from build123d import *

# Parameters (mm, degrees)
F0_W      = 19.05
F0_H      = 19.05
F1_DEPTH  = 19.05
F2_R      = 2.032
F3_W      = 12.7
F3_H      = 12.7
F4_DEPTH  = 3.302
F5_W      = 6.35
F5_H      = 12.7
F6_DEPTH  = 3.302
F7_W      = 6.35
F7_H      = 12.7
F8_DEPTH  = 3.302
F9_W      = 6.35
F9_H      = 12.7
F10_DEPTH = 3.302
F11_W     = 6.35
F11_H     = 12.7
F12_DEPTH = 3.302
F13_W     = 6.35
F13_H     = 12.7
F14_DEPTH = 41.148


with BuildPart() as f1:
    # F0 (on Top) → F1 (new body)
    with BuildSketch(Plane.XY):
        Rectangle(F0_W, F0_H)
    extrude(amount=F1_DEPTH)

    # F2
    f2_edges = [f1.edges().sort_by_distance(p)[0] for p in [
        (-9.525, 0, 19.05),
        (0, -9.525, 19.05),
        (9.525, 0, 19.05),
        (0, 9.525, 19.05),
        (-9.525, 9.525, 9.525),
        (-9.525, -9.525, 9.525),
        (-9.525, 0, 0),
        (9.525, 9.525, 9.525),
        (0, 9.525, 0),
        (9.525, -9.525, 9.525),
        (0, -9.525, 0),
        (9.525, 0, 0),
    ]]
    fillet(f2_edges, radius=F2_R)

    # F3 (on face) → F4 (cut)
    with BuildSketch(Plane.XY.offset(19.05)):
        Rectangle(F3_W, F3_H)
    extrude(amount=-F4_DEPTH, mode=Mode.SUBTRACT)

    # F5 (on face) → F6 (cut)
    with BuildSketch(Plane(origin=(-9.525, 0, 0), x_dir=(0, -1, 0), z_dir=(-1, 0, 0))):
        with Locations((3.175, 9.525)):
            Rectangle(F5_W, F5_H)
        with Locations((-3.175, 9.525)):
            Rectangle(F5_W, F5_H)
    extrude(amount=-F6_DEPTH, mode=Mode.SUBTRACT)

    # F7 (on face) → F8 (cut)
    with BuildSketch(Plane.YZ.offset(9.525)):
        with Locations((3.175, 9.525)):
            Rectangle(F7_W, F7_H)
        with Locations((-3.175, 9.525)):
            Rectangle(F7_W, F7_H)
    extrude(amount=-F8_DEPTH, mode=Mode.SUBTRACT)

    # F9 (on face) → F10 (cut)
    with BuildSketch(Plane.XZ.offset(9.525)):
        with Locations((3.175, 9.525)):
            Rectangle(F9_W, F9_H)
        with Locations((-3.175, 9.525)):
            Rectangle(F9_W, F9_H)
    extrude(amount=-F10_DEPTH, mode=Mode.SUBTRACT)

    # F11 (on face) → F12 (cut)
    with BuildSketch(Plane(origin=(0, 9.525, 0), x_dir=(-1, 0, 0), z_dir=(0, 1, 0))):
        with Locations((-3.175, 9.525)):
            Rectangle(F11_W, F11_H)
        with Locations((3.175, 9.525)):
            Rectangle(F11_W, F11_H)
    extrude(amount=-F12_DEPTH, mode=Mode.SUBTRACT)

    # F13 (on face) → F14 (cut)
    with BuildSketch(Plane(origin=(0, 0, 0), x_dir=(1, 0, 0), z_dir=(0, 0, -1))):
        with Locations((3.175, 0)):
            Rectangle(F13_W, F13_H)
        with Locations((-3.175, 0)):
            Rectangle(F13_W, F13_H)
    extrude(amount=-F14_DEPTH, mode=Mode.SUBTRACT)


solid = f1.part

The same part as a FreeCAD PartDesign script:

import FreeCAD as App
import Part
import Sketcher
Q = App.Units.Quantity

doc = App.newDocument("Part")
body = doc.addObject("PartDesign::Body", "Body")

sketch1 = doc.addObject("Sketcher::SketchObject", "Sketch")
body.addObject(sketch1)
sketch1.AttachmentSupport = (doc.XY_Plane, [""])
sketch1.MapMode = "FlatFace"
sketch1.addGeometry(Part.LineSegment(App.Vector(-10, 10, 0), App.Vector(-10, -10, 0)), False)
sketch1.addGeometry(Part.LineSegment(App.Vector(-10, -10, 0), App.Vector(10, -10, 0)), False)
sketch1.addGeometry(Part.LineSegment(App.Vector(10, -10, 0), App.Vector(10, 10, 0)), False)
sketch1.addGeometry(Part.LineSegment(App.Vector(10, 10, 0), App.Vector(-10, 10, 0)), False)
sketch1.addConstraint(Sketcher.Constraint("Coincident", 0, 2, 1, 1))
sketch1.addConstraint(Sketcher.Constraint("Coincident", 1, 2, 2, 1))
sketch1.addConstraint(Sketcher.Constraint("Coincident", 2, 2, 3, 1))
sketch1.addConstraint(Sketcher.Constraint("Coincident", 3, 2, 0, 1))
sketch1.addConstraint(Sketcher.Constraint("Vertical", 0))
sketch1.addConstraint(Sketcher.Constraint("Horizontal", 1))
sketch1.addConstraint(Sketcher.Constraint("Vertical", 2))
sketch1.addConstraint(Sketcher.Constraint("Horizontal", 3))
sketch1.addConstraint(Sketcher.Constraint("Symmetric", 0, 2, 2, 2, -1, 1))
sketch1.addConstraint(Sketcher.Constraint("Equal", 3, 0))
sketch1.addConstraint(Sketcher.Constraint("DistanceX", 1, 1, 1, 2, Q("0.75 in")))
pad1 = doc.addObject("PartDesign::Pad", "Pad")
body.addObject(pad1)
pad1.Profile = sketch1
pad1.Length = Q("0.75 in")
doc.recompute()

fillet = doc.addObject("PartDesign::Fillet", "Fillet")
body.addObject(fillet)
fillet.Base = (pad1, ["Edge1"])
fillet.UseAllEdges = True
fillet.Radius = Q("0.08 in")

sketch2 = doc.addObject("Sketcher::SketchObject", "Sketch001")
body.addObject(sketch2)
sketch2.AttachmentSupport = (doc.XY_Plane, [""])
sketch2.MapMode = "FlatFace"
sketch2.AttachmentOffset = App.Placement(App.Vector(0, 0, 0.75 * 25.4), App.Rotation())
sketch2.addGeometry(Part.LineSegment(App.Vector(-6, 6, 0), App.Vector(-6, -6, 0)), False)
sketch2.addGeometry(Part.LineSegment(App.Vector(-6, -6, 0), App.Vector(6, -6, 0)), False)
sketch2.addGeometry(Part.LineSegment(App.Vector(6, -6, 0), App.Vector(6, 6, 0)), False)
sketch2.addGeometry(Part.LineSegment(App.Vector(6, 6, 0), App.Vector(-6, 6, 0)), False)
sketch2.addConstraint(Sketcher.Constraint("Coincident", 0, 2, 1, 1))
sketch2.addConstraint(Sketcher.Constraint("Coincident", 1, 2, 2, 1))
sketch2.addConstraint(Sketcher.Constraint("Coincident", 2, 2, 3, 1))
sketch2.addConstraint(Sketcher.Constraint("Coincident", 3, 2, 0, 1))
sketch2.addConstraint(Sketcher.Constraint("Vertical", 0))
sketch2.addConstraint(Sketcher.Constraint("Horizontal", 1))
sketch2.addConstraint(Sketcher.Constraint("Vertical", 2))
sketch2.addConstraint(Sketcher.Constraint("Horizontal", 3))
sketch2.addConstraint(Sketcher.Constraint("Symmetric", 0, 2, 2, 2, -1, 1))
sketch2.addConstraint(Sketcher.Constraint("Equal", 3, 0))
sketch2.addConstraint(Sketcher.Constraint("DistanceX", 1, 1, 1, 2, Q("0.5 in")))
pocket1 = doc.addObject("PartDesign::Pocket", "Pocket")
body.addObject(pocket1)
pocket1.Profile = sketch2
pocket1.Length = Q("0.13 in")

sketch3 = doc.addObject("Sketcher::SketchObject", "Sketch002")
body.addObject(sketch3)
sketch3.AttachmentSupport = (doc.YZ_Plane, [""])
sketch3.MapMode = "FlatFace"
sketch3.AttachmentOffset = App.Placement(App.Vector(0, 0, -0.375 * 25.4), App.Rotation())
sketch3.addGeometry(Part.LineSegment(App.Vector(-6, 3, 0), App.Vector(-6, 16, 0)), False)
sketch3.addGeometry(Part.LineSegment(App.Vector(-6, 16, 0), App.Vector(6, 16, 0)), False)
sketch3.addGeometry(Part.LineSegment(App.Vector(6, 16, 0), App.Vector(6, 3, 0)), False)
sketch3.addGeometry(Part.LineSegment(App.Vector(6, 3, 0), App.Vector(-6, 3, 0)), False)
sketch3.addConstraint(Sketcher.Constraint("Coincident", 0, 2, 1, 1))
sketch3.addConstraint(Sketcher.Constraint("Coincident", 1, 2, 2, 1))
sketch3.addConstraint(Sketcher.Constraint("Coincident", 2, 2, 3, 1))
sketch3.addConstraint(Sketcher.Constraint("Coincident", 3, 2, 0, 1))
sketch3.addConstraint(Sketcher.Constraint("Vertical", 0))
sketch3.addConstraint(Sketcher.Constraint("Horizontal", 1))
sketch3.addConstraint(Sketcher.Constraint("Vertical", 2))
sketch3.addConstraint(Sketcher.Constraint("Horizontal", 3))
sketch3.addConstraint(Sketcher.Constraint("Equal", 3, 0))
sketch3.addConstraint(Sketcher.Constraint("DistanceX", 1, 1, 1, 2, Q("0.5 in")))
sketch3.addConstraint(Sketcher.Constraint("DistanceX", 0, 2, -1, 1, Q("0.25 in")))
sketch3.addConstraint(Sketcher.Constraint("DistanceY", -1, 1, 0, 2, Q("0.625 in")))
pocket2 = doc.addObject("PartDesign::Pocket", "Pocket001")
body.addObject(pocket2)
pocket2.Profile = sketch3
pocket2.Length = Q("0.13 in")
pocket2.Reversed = True

sketch4 = doc.addObject("Sketcher::SketchObject", "Sketch003")
body.addObject(sketch4)
sketch4.AttachmentSupport = (doc.YZ_Plane, [""])
sketch4.MapMode = "FlatFace"
sketch4.AttachmentOffset = App.Placement(App.Vector(0, 0, 0.375 * 25.4), App.Rotation())
sketch4.addGeometry(Part.LineSegment(App.Vector(6, 3, 0), App.Vector(6, 16, 0)), False)
sketch4.addGeometry(Part.LineSegment(App.Vector(6, 16, 0), App.Vector(-6, 16, 0)), False)
sketch4.addGeometry(Part.LineSegment(App.Vector(-6, 16, 0), App.Vector(-6, 3, 0)), False)
sketch4.addGeometry(Part.LineSegment(App.Vector(-6, 3, 0), App.Vector(6, 3, 0)), False)
sketch4.addConstraint(Sketcher.Constraint("Coincident", 0, 2, 1, 1))
sketch4.addConstraint(Sketcher.Constraint("Coincident", 1, 2, 2, 1))
sketch4.addConstraint(Sketcher.Constraint("Coincident", 2, 2, 3, 1))
sketch4.addConstraint(Sketcher.Constraint("Coincident", 3, 2, 0, 1))
sketch4.addConstraint(Sketcher.Constraint("Vertical", 0))
sketch4.addConstraint(Sketcher.Constraint("Horizontal", 1))
sketch4.addConstraint(Sketcher.Constraint("Vertical", 2))
sketch4.addConstraint(Sketcher.Constraint("Horizontal", 3))
sketch4.addConstraint(Sketcher.Constraint("Equal", 3, 0))
sketch4.addConstraint(Sketcher.Constraint("DistanceX", 1, 2, 1, 1, Q("0.5 in")))
sketch4.addConstraint(Sketcher.Constraint("DistanceX", -1, 1, 0, 2, Q("0.25 in")))
sketch4.addConstraint(Sketcher.Constraint("DistanceY", -1, 1, 0, 2, Q("0.625 in")))
pocket3 = doc.addObject("PartDesign::Pocket", "Pocket002")
body.addObject(pocket3)
pocket3.Profile = sketch4
pocket3.Length = Q("0.13 in")

sketch5 = doc.addObject("Sketcher::SketchObject", "Sketch004")
body.addObject(sketch5)
sketch5.AttachmentSupport = (doc.XZ_Plane, [""])
sketch5.MapMode = "FlatFace"
sketch5.AttachmentOffset = App.Placement(App.Vector(0, 0, 0.375 * 25.4), App.Rotation())
sketch5.addGeometry(Part.LineSegment(App.Vector(6, 3, 0), App.Vector(6, 16, 0)), False)
sketch5.addGeometry(Part.LineSegment(App.Vector(6, 16, 0), App.Vector(-6, 16, 0)), False)
sketch5.addGeometry(Part.LineSegment(App.Vector(-6, 16, 0), App.Vector(-6, 3, 0)), False)
sketch5.addGeometry(Part.LineSegment(App.Vector(-6, 3, 0), App.Vector(6, 3, 0)), False)
sketch5.addConstraint(Sketcher.Constraint("Coincident", 0, 2, 1, 1))
sketch5.addConstraint(Sketcher.Constraint("Coincident", 1, 2, 2, 1))
sketch5.addConstraint(Sketcher.Constraint("Coincident", 2, 2, 3, 1))
sketch5.addConstraint(Sketcher.Constraint("Coincident", 3, 2, 0, 1))
sketch5.addConstraint(Sketcher.Constraint("Vertical", 0))
sketch5.addConstraint(Sketcher.Constraint("Horizontal", 1))
sketch5.addConstraint(Sketcher.Constraint("Vertical", 2))
sketch5.addConstraint(Sketcher.Constraint("Horizontal", 3))
sketch5.addConstraint(Sketcher.Constraint("Equal", 3, 0))
sketch5.addConstraint(Sketcher.Constraint("DistanceX", 1, 2, 1, 1, Q("0.5 in")))
sketch5.addConstraint(Sketcher.Constraint("DistanceX", -1, 1, 0, 2, Q("0.25 in")))
sketch5.addConstraint(Sketcher.Constraint("DistanceY", -1, 1, 0, 2, Q("0.625 in")))
pocket4 = doc.addObject("PartDesign::Pocket", "Pocket003")
body.addObject(pocket4)
pocket4.Profile = sketch5
pocket4.Length = Q("0.13 in")

sketch6 = doc.addObject("Sketcher::SketchObject", "Sketch005")
body.addObject(sketch6)
sketch6.AttachmentSupport = (doc.XZ_Plane, [""])
sketch6.MapMode = "FlatFace"
sketch6.AttachmentOffset = App.Placement(App.Vector(0, 0, -0.375 * 25.4), App.Rotation())
sketch6.addGeometry(Part.LineSegment(App.Vector(6, 16, 0), App.Vector(6, 3, 0)), False)
sketch6.addGeometry(Part.LineSegment(App.Vector(6, 3, 0), App.Vector(-6, 3, 0)), False)
sketch6.addGeometry(Part.LineSegment(App.Vector(-6, 3, 0), App.Vector(-6, 16, 0)), False)
sketch6.addGeometry(Part.LineSegment(App.Vector(-6, 16, 0), App.Vector(6, 16, 0)), False)
sketch6.addConstraint(Sketcher.Constraint("Coincident", 0, 2, 1, 1))
sketch6.addConstraint(Sketcher.Constraint("Coincident", 1, 2, 2, 1))
sketch6.addConstraint(Sketcher.Constraint("Coincident", 2, 2, 3, 1))
sketch6.addConstraint(Sketcher.Constraint("Coincident", 3, 2, 0, 1))
sketch6.addConstraint(Sketcher.Constraint("Vertical", 0))
sketch6.addConstraint(Sketcher.Constraint("Horizontal", 1))
sketch6.addConstraint(Sketcher.Constraint("Vertical", 2))
sketch6.addConstraint(Sketcher.Constraint("Horizontal", 3))
sketch6.addConstraint(Sketcher.Constraint("Equal", 3, 0))
sketch6.addConstraint(Sketcher.Constraint("DistanceX", 1, 2, 1, 1, Q("0.5 in")))
sketch6.addConstraint(Sketcher.Constraint("DistanceX", -1, 1, 0, 2, Q("0.25 in")))
sketch6.addConstraint(Sketcher.Constraint("DistanceY", -1, 1, 0, 2, Q("0.125 in")))
pocket5 = doc.addObject("PartDesign::Pocket", "Pocket004")
body.addObject(pocket5)
pocket5.Profile = sketch6
pocket5.Length = Q("0.13 in")
pocket5.Reversed = True

sketch7 = doc.addObject("Sketcher::SketchObject", "Sketch006")
body.addObject(sketch7)
sketch7.AttachmentSupport = (doc.XY_Plane, [""])
sketch7.MapMode = "FlatFace"
sketch7.addGeometry(Part.LineSegment(App.Vector(6, 6, 0), App.Vector(6, -6, 0)), False)
sketch7.addGeometry(Part.LineSegment(App.Vector(6, -6, 0), App.Vector(-6, -6, 0)), False)
sketch7.addGeometry(Part.LineSegment(App.Vector(-6, -6, 0), App.Vector(-6, 6, 0)), False)
sketch7.addGeometry(Part.LineSegment(App.Vector(-6, 6, 0), App.Vector(6, 6, 0)), False)
sketch7.addConstraint(Sketcher.Constraint("Coincident", 0, 2, 1, 1))
sketch7.addConstraint(Sketcher.Constraint("Coincident", 1, 2, 2, 1))
sketch7.addConstraint(Sketcher.Constraint("Coincident", 2, 2, 3, 1))
sketch7.addConstraint(Sketcher.Constraint("Coincident", 3, 2, 0, 1))
sketch7.addConstraint(Sketcher.Constraint("Vertical", 0))
sketch7.addConstraint(Sketcher.Constraint("Horizontal", 1))
sketch7.addConstraint(Sketcher.Constraint("Vertical", 2))
sketch7.addConstraint(Sketcher.Constraint("Horizontal", 3))
sketch7.addConstraint(Sketcher.Constraint("Symmetric", 0, 2, 2, 2, -1, 1))
sketch7.addConstraint(Sketcher.Constraint("Equal", 3, 0))
sketch7.addConstraint(Sketcher.Constraint("DistanceX", 1, 2, 1, 1, Q("0.5 in")))
pocket6 = doc.addObject("PartDesign::Pocket", "Pocket005")
body.addObject(pocket6)
pocket6.Profile = sketch7
pocket6.Length = Q("1.62 in")
pocket6.Reversed = True

doc.recompute()
